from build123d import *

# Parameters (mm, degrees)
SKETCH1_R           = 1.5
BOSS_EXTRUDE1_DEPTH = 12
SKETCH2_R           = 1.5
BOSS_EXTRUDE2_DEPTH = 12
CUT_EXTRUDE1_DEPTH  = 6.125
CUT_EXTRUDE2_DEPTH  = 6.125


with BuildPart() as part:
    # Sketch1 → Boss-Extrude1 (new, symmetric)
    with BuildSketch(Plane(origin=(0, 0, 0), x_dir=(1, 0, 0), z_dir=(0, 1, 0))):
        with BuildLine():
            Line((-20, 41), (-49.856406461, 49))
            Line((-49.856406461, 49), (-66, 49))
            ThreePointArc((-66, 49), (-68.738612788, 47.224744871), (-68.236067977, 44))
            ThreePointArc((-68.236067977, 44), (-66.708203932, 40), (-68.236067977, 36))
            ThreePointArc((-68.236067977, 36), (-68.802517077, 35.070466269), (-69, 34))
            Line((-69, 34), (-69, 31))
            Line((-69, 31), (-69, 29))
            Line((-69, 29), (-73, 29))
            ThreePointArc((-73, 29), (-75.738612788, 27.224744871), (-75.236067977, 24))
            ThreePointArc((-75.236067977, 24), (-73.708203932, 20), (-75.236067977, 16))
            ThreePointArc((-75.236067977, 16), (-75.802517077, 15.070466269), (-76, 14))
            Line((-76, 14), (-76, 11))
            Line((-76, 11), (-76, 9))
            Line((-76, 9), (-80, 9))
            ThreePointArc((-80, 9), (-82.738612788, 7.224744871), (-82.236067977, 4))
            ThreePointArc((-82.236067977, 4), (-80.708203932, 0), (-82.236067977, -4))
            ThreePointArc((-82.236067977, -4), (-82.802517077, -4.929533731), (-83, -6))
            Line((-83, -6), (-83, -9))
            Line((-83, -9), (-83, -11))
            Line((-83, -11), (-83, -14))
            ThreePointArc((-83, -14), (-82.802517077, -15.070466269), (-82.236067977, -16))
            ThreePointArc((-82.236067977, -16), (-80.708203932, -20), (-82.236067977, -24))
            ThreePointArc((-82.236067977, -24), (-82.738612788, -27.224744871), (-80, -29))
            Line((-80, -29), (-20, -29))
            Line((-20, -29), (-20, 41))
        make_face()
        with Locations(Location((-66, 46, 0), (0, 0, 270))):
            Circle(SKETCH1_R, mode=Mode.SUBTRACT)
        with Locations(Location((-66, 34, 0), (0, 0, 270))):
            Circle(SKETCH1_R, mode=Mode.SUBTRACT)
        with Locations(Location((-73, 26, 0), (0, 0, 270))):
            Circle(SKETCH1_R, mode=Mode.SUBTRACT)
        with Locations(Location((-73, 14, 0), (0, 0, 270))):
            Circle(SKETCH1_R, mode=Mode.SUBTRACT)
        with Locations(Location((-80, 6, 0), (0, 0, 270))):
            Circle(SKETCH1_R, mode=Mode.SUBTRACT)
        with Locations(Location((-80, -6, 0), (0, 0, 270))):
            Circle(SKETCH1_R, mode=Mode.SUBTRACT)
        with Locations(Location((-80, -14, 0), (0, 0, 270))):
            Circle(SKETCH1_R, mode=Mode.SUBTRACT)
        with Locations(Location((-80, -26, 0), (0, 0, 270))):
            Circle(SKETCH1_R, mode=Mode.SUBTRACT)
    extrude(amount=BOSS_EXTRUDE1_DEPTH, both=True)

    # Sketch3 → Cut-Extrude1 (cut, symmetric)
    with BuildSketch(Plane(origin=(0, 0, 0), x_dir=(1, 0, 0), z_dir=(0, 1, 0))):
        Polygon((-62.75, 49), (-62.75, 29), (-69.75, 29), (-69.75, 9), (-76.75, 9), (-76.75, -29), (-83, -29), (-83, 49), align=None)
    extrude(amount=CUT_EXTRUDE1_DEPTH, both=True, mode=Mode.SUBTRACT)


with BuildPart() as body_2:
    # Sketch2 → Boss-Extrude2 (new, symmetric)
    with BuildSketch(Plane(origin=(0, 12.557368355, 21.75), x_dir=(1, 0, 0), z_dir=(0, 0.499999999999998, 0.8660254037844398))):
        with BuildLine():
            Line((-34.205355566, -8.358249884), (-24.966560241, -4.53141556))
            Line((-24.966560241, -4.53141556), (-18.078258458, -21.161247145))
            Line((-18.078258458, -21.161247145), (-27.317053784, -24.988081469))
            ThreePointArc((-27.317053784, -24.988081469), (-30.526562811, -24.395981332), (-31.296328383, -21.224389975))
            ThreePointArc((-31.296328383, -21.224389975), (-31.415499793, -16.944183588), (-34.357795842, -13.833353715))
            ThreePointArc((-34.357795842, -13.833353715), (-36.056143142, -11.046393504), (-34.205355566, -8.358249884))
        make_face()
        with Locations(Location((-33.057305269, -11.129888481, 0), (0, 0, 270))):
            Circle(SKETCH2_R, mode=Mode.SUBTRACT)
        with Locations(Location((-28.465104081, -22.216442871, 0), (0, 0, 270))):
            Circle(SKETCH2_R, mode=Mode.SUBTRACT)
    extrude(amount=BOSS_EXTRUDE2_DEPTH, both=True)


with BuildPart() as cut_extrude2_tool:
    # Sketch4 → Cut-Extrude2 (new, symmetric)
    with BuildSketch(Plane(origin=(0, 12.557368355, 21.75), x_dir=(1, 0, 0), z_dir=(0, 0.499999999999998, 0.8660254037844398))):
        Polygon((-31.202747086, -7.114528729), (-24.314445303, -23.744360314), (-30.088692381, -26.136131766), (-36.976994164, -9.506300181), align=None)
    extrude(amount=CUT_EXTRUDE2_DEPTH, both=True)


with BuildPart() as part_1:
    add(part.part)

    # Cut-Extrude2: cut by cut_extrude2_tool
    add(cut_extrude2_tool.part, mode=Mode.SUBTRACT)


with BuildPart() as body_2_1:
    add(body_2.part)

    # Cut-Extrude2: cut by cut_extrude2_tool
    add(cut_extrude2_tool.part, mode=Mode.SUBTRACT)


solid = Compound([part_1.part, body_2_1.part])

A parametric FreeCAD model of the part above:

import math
import FreeCAD as App
import Part
import Sketcher
from FreeCAD import Vector
Q = App.Units.Quantity


def add_polygon(sketch, points):
    """Adds a closed chain of lines whose ends are joined by coincident constraints."""
    first, n = sketch.GeometryCount, len(points)
    for a, b in zip(points, points[1:] + points[:1]):
        sketch.addGeometry(Part.LineSegment(App.Vector(*a, 0), App.Vector(*b, 0)), False)
    for i in range(n):
        sketch.addConstraint(Sketcher.Constraint("Coincident", first + i, 2, first + (i + 1) % n, 1))

doc = App.newDocument("Part")
body = doc.addObject("PartDesign::Body", "Body")

sketch1 = body.newObject("Sketcher::SketchObject", "Sketch")
sketch1.AttachmentSupport = (doc.getObject("XZ_Plane"), [""])
sketch1.MapMode = "FlatFace"
sketch1.addGeometry([
    Part.LineSegment(Vector(-20, -41, 0), Vector(-49.9, -49, 0)),
    Part.LineSegment(Vector(-49.9, -49, 0), Vector(-66, -49, 0)),
    Part.ArcOfCircle(Part.Circle(Vector(-66, -46, 0), Vector(0, 0, 1), 3), math.radians(138), math.radians(270)),
    Part.ArcOfCircle(Part.Circle(Vector(-72.7, -40, 0), Vector(0, 0, 1), 6), math.radians(-42), math.radians(42)),
    Part.ArcOfCircle(Part.Circle(Vector(-66, -34, 0), Vector(0, 0, 1), 3), math.radians(180), math.radians(222)),
    Part.LineSegment(Vector(-69, -34, 0), Vector(-69, -29, 0)),
    Part.LineSegment(Vector(-69, -29, 0), Vector(-73, -29, 0)),
    Part.ArcOfCircle(Part.Circle(Vector(-73, -26, 0), Vector(0, 0, 1), 3), math.radians(138), math.radians(270)),
    Part.ArcOfCircle(Part.Circle(Vector(-79.7, -20, 0), Vector(0, 0, 1), 6), math.radians(-42), math.radians(42)),
    Part.ArcOfCircle(Part.Circle(Vector(-73, -14, 0), Vector(0, 0, 1), 3), math.radians(180), math.radians(222)),
    Part.LineSegment(Vector(-76, -14, 0), Vector(-76, -9, 0)),
    Part.LineSegment(Vector(-76, -9, 0), Vector(-80, -9, 0)),
    Part.ArcOfCircle(Part.Circle(Vector(-80, -6, 0), Vector(0, 0, 1), 3), math.radians(138), math.radians(270)),
    Part.ArcOfCircle(Part.Circle(Vector(-86.7, 0, 0), Vector(0, 0, 1), 6), math.radians(-42), math.radians(42)),
    Part.ArcOfCircle(Part.Circle(Vector(-80, 6, 0), Vector(0, 0, 1), 3), math.radians(180), math.radians(222)),
    Part.LineSegment(Vector(-83, 6, 0), Vector(-83, 14, 0)),
    Part.ArcOfCircle(Part.Circle(Vector(-80, 14, 0), Vector(0, 0, 1), 3), math.radians(138), math.radians(180)),
    Part.ArcOfCircle(Part.Circle(Vector(-86.7, 20, 0), Vector(0, 0, 1), 6), math.radians(-42), math.radians(42)),
    Part.ArcOfCircle(Part.Circle(Vector(-80, 26, 0), Vector(0, 0, 1), 3), math.radians(90), math.radians(222)),
    Part.LineSegment(Vector(-80, 29, 0), Vector(-20, 29, 0)),
    Part.LineSegment(Vector(-20, 29, 0), Vector(-20, -41, 0)),
    Part.Circle(Vector(-80, 26, 0), Vector(0, 0, 1), 1.5),
    Part.Circle(Vector(-80, 14, 0), Vector(0, 0, 1), 1.5),
    Part.Circle(Vector(-80, 6, 0), Vector(0, 0, 1), 1.5),
    Part.Circle(Vector(-80, -6, 0), Vector(0, 0, 1), 1.5),
    Part.Circle(Vector(-73, -14, 0), Vector(0, 0, 1), 1.5),
    Part.Circle(Vector(-73, -26, 0), Vector(0, 0, 1), 1.5),
    Part.Circle(Vector(-66, -34, 0), Vector(0, 0, 1), 1.5),
    Part.Circle(Vector(-66, -46, 0), Vector(0, 0, 1), 1.5),
], False)
sketch1.addConstraint([
    Sketcher.Constraint("Coincident", 0, 2, 1, 1),
    Sketcher.Constraint("Tangent", 1, 2, 2, 2),
    Sketcher.Constraint("Tangent", 2, 1, 3, 1),
    Sketcher.Constraint("Tangent", 3, 2, 4, 2),
    Sketcher.Constraint("Tangent", 4, 1, 5, 1),
    Sketcher.Constraint("Coincident", 5, 2, 6, 1),
    Sketcher.Constraint("Tangent", 6, 2, 7, 2),
    Sketcher.Constraint("Tangent", 7, 1, 8, 1),
    Sketcher.Constraint("Tangent", 8, 2, 9, 2),
    Sketcher.Constraint("Tangent", 9, 1, 10, 1),
    Sketcher.Constraint("Coincident", 10, 2, 11, 1),
    Sketcher.Constraint("Tangent", 11, 2, 12, 2),
    Sketcher.Constraint("Tangent", 12, 1, 13, 1),
    Sketcher.Constraint("Tangent", 13, 2, 14, 2),
    Sketcher.Constraint("Tangent", 14, 1, 15, 1),
    Sketcher.Constraint("Tangent", 15, 2, 16, 2),
    Sketcher.Constraint("Tangent", 16, 1, 17, 1),
    Sketcher.Constraint("Tangent", 17, 2, 18, 2),
    Sketcher.Constraint("Tangent", 18, 1, 19, 1),
    Sketcher.Constraint("Coincident", 19, 2, 20, 1),
    Sketcher.Constraint("Coincident", 20, 2, 0, 1),
    Sketcher.Constraint("Horizontal", 1),
    Sketcher.Constraint("Vertical", 5),
    Sketcher.Constraint("Horizontal", 6),
    Sketcher.Constraint("Vertical", 10),
    Sketcher.Constraint("Horizontal", 11),
    Sketcher.Constraint("Vertical", 15),
    Sketcher.Constraint("Horizontal", 19),
    Sketcher.Constraint("Vertical", 20),
    Sketcher.Constraint("Coincident", 21, 3, 18, 3),
    Sketcher.Constraint("Coincident", 22, 3, 16, 3),
    Sketcher.Constraint("Coincident", 23, 3, 14, 3),
    Sketcher.Constraint("Coincident", 24, 3, 12, 3),
    Sketcher.Constraint("Coincident", 25, 3, 9, 3),
    Sketcher.Constraint("Coincident", 26, 3, 7, 3),
    Sketcher.Constraint("Coincident", 27, 3, 4, 3),
    Sketcher.Constraint("Coincident", 28, 3, 2, 3),
    Sketcher.Constraint("Equal", 2, 4),
    Sketcher.Constraint("Equal", 4, 7),
    Sketcher.Constraint("Equal", 3, 8),
    Sketcher.Constraint("Equal", 7, 9),
    Sketcher.Constraint("Equal", 9, 12),
    Sketcher.Constraint("Equal", 8, 13),
    Sketcher.Constraint("Equal", 12, 14),
    Sketcher.Constraint("Equal", 14, 16),
    Sketcher.Constraint("Equal", 13, 17),
    Sketcher.Constraint("Equal", 16, 18),
    Sketcher.Constraint("Equal", 21, 22),
    Sketcher.Constraint("Equal", 22, 23),
    Sketcher.Constraint("Equal", 23, 24),
    Sketcher.Constraint("Equal", 24, 25),
    Sketcher.Constraint("Equal", 25, 26),
    Sketcher.Constraint("Equal", 26, 27),
    Sketcher.Constraint("Equal", 27, 28),
    Sketcher.Constraint("Symmetric", 12, 3, 14, 3, -1),
    Sketcher.Constraint("Vertical", 2, 3, 4, 3),
    Sketcher.Constraint("Vertical", 7, 3, 9, 3),
    Sketcher.Constraint("Vertical", 13, 3, 17, 3),
    Sketcher.Constraint("Vertical", 16, 3, 18, 3),
    Sketcher.Constraint("Equal", 6, 11),
    Sketcher.Constraint("Equal", 5, 10),
    Sketcher.Constraint("Diameter", 21, 3.0),
    Sketcher.Constraint("Radius", 2, 3.0),
    Sketcher.Constraint("Radius", 3, 6.0),
    Sketcher.Constraint("DistanceX", 6, 2, 6, 1, 4.0),
    Sketcher.Constraint("DistanceX", 19, 1, 19, 2, 60.0),
    Sketcher.Constraint("DistanceY", 5, 1, 5, 2, 5.0),
    Sketcher.Constraint("DistanceY", 15, 1, 15, 2, 8.0),
    Sketcher.Constraint("DistanceY", 20, 2, 20, 1, 70.0),
    Sketcher.Constraint("Angle", 0, Q("-165 deg")),
    Sketcher.Constraint("DistanceX", 2, 3, -1, 1, 66.0),
    Sketcher.Constraint("DistanceY", 2, 3, -1, 1, 46.0),
    Sketcher.Constraint("DistanceY", 3, 3, -1, 1, 40.0),
    Sketcher.Constraint("DistanceY", 8, 3, -1, 1, 20.0),
])
pad1 = body.newObject("PartDesign::Pad", "Pad")
pad1.Profile = sketch1
pad1.Length = 24
pad1.Midplane = True

sketch2 = body.newObject("Sketcher::SketchObject", "Sketch001")
sketch2.AttachmentSupport = (doc.getObject("XZ_Plane"), [""])
sketch2.MapMode = "FlatFace"
add_polygon(sketch2, [(-63, -29), (-63, -49), (-83, -49), (-83, 29), (-77, 29), (-77, -9), (-70, -9), (-70, -29)])
sketch2.addConstraint([
    Sketcher.Constraint("Vertical", 0),
    Sketcher.Constraint("Horizontal", 1),
    Sketcher.Constraint("Vertical", 2),
    Sketcher.Constraint("Horizontal", 3),
    Sketcher.Constraint("Vertical", 4),
    Sketcher.Constraint("Horizontal", 5),
    Sketcher.Constraint("Vertical", 6),
    Sketcher.Constraint("Horizontal", 7),
    Sketcher.Constraint("Equal", 5, 7),
    Sketcher.Constraint("Equal", 0, 6),
    Sketcher.Constraint("DistanceX", 5, 1, 5, 2, 7.0),
    Sketcher.Constraint("DistanceY", 0, 2, 0, 1, 20.0),
    Sketcher.Constraint("DistanceY", 2, 1, 2, 2, 78.0),
    Sketcher.Constraint("DistanceY", 0, 2, -1, 1, 49.0),
    Sketcher.Constraint("DistanceX", 1, 2, -1, 1, 83.0),
    Sketcher.Constraint("DistanceX", 1, 2, 1, 1, 20.25),
])
pocket1 = body.newObject("PartDesign::Pocket", "Pocket")
pocket1.Profile = sketch2
pocket1.Length = 12.25
pocket1.Midplane = True
body2 = doc.addObject("PartDesign::Body", "Body001")

sketch3 = body2.newObject("Sketcher::SketchObject", "Sketch002")
sketch3.Placement = App.Placement(Vector(0, 12.557368, 21.75), App.Rotation(Vector(1, 0, 0), Vector(0, 0.866025404, -0.5), Vector(0, 0.5, 0.866025404), "ZXY"))
sketch3.addGeometry([
    Part.LineSegment(Vector(-25, -4.5, 0), Vector(-34.2, -8.4, 0)),
    Part.ArcOfCircle(Part.Circle(Vector(-33.1, -11.1, 0), Vector(0, 0, 1), 3), math.radians(112), math.radians(244)),
    Part.ArcOfCircle(Part.Circle(Vector(-37, -19.2, 0), Vector(0, 0, 1), 6), math.radians(-19), math.radians(64)),
    Part.ArcOfCircle(Part.Circle(Vector(-28.5, -22.2, 0), Vector(0, 0, 1), 3), math.radians(161), math.radians(292)),
    Part.LineSegment(Vector(-27.3, -25, 0), Vector(-18.1, -21.2, 0)),
    Part.LineSegment(Vector(-18.1, -21.2, 0), Vector(-25, -4.5, 0)),
    Part.Circle(Vector(-28.5, -22.2, 0), Vector(0, 0, 1), 1.5),
    Part.Circle(Vector(-33.1, -11.1, 0), Vector(0, 0, 1), 1.5),
], False)
sketch3.addConstraint([
    Sketcher.Constraint("Tangent", 0, 2, 1, 1),
    Sketcher.Constraint("Tangent", 1, 2, 2, 2),
    Sketcher.Constraint("Tangent", 2, 1, 3, 1),
    Sketcher.Constraint("Tangent", 3, 2, 4, 1),
    Sketcher.Constraint("Coincident", 4, 2, 5, 1),
    Sketcher.Constraint("Coincident", 5, 2, 0, 1),
    Sketcher.Constraint("Coincident", 6, 3, 3, 3),
    Sketcher.Constraint("Coincident", 7, 3, 1, 3),
    Sketcher.Constraint("Equal", 1, 3),
    Sketcher.Constraint("Equal", 6, 7),
    Sketcher.Constraint("Parallel", 0, 4),
    Sketcher.Constraint("Perpendicular", 4, 5),
    Sketcher.Constraint("Equal", 0, 4),
    Sketcher.Constraint("Diameter", 6, 3.0),
    Sketcher.Constraint("Radius", 1, 3.0),
    Sketcher.Constraint("Radius", 2, 6.0),
    Sketcher.Constraint("Distance", 0, 10.0),
    Sketcher.Constraint("Distance", 5, 18.0),
    Sketcher.Constraint("Angle", 0, Q("-157.5 deg")),
    Sketcher.Constraint("DistanceY", 1, 3, -1, 1, 11.129888),
    Sketcher.Constraint("DistanceX", 2, 1, -1, 1, 31.296328),
])
pad2 = body2.newObject("PartDesign::Pad", "Pad001")
pad2.Profile = sketch3
pad2.Length = 24
pad2.Midplane = True
body3 = doc.addObject("PartDesign::Body", "Body002")

sketch4 = body3.newObject("Sketcher::SketchObject", "Sketch003")
sketch4.Placement = App.Placement(Vector(0, 12.557368, 21.75), App.Rotation(Vector(1, 0, 0), Vector(0, 0.866025404, -0.5), Vector(0, 0.5, 0.866025404), "ZXY"))
add_polygon(sketch4, [(-24, -24), (-31, -7), (-37, -10), (-30, -26)])
sketch4.addConstraint([
    Sketcher.Constraint("Perpendicular", 0, 1),
    Sketcher.Constraint("Perpendicular", 1, 2),
    Sketcher.Constraint("Perpendicular", 2, 3),
    Sketcher.Constraint("Distance", 0, 18.0),
    Sketcher.Constraint("Angle", 0, Q("112.5 deg")),
    Sketcher.Constraint("Distance", 1, 6.25),
    Sketcher.Constraint("DistanceY", 1, 2, -1, 1, 9.5063),
    Sketcher.Constraint("DistanceX", 0, 2, -1, 1, 31.202747),
])
pad3 = body3.newObject("PartDesign::Pad", "Pad002")
pad3.Profile = sketch4
pad3.Length = 12.25
pad3.Midplane = True
doc.recompute()

body4 = doc.addObject("PartDesign::Body", "Body003")
body4.BaseFeature = body3
boolean = body.newObject("PartDesign::Boolean", "Boolean")
boolean.Type = "Cut"
boolean.addObjects([body4])
doc.recompute()

boolean2 = body2.newObject("PartDesign::Boolean", "Boolean001")
boolean2.Type = "Cut"
boolean2.addObjects([body3])

doc.recompute()
